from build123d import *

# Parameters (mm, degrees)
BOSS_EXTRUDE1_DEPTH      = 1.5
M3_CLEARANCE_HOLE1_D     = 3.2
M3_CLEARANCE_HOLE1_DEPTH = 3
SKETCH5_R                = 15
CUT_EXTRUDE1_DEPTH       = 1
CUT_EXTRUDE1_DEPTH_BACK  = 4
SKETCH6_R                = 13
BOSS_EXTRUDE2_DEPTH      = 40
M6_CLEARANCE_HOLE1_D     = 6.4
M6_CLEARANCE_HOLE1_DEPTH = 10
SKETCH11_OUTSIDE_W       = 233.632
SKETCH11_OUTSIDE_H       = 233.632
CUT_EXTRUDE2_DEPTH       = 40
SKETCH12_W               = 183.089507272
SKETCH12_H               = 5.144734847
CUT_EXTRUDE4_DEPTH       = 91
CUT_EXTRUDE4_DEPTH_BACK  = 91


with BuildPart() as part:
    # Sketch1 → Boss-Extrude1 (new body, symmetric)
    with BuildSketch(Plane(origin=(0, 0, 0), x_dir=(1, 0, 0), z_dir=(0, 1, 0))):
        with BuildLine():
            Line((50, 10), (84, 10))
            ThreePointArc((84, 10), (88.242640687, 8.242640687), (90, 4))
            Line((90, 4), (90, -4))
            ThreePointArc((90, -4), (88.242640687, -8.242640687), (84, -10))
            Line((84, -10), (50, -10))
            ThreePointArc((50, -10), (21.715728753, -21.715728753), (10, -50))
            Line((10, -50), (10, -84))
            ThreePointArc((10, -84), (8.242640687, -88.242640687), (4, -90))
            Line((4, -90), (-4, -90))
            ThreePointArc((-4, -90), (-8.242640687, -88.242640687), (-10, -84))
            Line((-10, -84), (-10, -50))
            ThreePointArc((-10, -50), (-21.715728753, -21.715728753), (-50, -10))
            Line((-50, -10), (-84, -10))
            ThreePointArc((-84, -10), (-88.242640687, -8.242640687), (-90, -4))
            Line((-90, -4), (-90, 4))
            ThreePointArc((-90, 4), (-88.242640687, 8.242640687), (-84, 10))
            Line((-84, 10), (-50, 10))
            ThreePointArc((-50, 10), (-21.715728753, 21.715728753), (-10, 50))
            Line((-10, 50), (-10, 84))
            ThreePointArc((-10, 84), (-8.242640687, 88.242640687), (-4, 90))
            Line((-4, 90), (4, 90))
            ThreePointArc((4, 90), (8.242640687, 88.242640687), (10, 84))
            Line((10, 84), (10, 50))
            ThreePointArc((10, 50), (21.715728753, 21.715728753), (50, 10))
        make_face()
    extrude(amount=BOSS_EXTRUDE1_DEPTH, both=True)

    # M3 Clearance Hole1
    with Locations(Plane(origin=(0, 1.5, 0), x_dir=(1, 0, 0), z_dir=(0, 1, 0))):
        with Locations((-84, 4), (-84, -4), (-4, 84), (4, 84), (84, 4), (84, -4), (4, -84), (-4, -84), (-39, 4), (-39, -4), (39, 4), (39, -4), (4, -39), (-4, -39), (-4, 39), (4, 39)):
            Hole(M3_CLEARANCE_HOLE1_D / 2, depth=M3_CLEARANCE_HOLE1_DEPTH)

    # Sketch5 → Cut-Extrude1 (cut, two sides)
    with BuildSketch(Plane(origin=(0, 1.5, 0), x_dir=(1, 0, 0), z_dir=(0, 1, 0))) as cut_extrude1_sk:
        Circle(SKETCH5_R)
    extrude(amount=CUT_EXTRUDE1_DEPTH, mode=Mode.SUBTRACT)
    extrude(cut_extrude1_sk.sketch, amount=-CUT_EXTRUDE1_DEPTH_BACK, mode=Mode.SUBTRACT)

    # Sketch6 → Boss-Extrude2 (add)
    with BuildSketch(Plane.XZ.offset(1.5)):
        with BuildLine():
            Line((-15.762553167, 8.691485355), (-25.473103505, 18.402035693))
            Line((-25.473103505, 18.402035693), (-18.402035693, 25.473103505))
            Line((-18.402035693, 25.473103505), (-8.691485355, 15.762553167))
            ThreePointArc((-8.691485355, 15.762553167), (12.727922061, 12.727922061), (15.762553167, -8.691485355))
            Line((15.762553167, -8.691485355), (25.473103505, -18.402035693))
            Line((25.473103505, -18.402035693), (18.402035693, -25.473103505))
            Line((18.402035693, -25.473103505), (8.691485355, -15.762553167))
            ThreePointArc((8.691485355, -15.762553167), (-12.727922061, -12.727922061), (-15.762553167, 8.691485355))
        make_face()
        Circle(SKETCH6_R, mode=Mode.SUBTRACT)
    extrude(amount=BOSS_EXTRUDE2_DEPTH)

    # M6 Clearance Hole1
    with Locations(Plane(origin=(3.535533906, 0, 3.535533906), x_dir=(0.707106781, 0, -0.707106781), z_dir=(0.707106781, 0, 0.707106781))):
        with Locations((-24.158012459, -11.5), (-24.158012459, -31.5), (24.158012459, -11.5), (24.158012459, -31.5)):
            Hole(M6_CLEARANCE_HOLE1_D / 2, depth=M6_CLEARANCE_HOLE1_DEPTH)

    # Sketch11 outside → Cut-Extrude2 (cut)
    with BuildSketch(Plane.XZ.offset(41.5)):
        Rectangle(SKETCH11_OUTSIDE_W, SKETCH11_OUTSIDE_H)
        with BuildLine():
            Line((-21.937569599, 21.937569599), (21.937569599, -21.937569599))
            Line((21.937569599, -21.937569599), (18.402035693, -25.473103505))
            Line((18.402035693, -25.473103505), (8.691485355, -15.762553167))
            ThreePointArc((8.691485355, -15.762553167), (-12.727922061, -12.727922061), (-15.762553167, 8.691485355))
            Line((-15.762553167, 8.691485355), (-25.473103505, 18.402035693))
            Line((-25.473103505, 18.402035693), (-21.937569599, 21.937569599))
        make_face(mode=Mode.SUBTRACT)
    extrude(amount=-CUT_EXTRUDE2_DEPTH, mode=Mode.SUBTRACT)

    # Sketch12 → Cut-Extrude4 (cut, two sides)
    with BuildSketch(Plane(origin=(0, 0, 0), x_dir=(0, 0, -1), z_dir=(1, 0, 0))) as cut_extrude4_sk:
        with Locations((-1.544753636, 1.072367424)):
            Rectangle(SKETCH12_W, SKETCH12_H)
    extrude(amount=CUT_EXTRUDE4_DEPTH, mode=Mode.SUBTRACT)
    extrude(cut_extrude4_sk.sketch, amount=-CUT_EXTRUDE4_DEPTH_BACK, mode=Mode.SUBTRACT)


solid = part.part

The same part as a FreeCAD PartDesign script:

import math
import FreeCAD as App
import Part
import Sketcher

V = App.Vector
Q = App.Units.Quantity

doc = App.newDocument("Part")
body = doc.addObject("PartDesign::Body", "Body")

# Sketch on XZ plane
sketch1 = doc.addObject("Sketcher::SketchObject", "Sketch")
body.addObject(sketch1)
sketch1.AttachmentSupport = (doc.XZ_Plane, [""])
sketch1.MapMode = "FlatFace"
sketch1.addGeometry([
    Part.LineSegment(V(84, -10, 0), V(50, -10, 0)),  # 0
    Part.ArcOfCircle(Part.Circle(V(50, -50, 0), V(0, 0, 1), 40), math.radians(90), math.radians(180)),  # 1
    Part.LineSegment(V(10, -50, 0), V(10, -84, 0)),  # 2
    Part.ArcOfCircle(Part.Circle(V(4, -84, 0), V(0, 0, 1), 6), math.radians(-90), math.radians(0)),  # 3
    Part.LineSegment(V(4, -90, 0), V(-4, -90, 0)),  # 4
    Part.ArcOfCircle(Part.Circle(V(-4, -84, 0), V(0, 0, 1), 6), math.radians(180), math.radians(270)),  # 5
    Part.LineSegment(V(-10, -84, 0), V(-10, -50, 0)),  # 6
    Part.ArcOfCircle(Part.Circle(V(-50, -50, 0), V(0, 0, 1), 40), math.radians(0), math.radians(90)),  # 7
    Part.LineSegment(V(-50, -10, 0), V(-84, -10, 0)),  # 8
    Part.ArcOfCircle(Part.Circle(V(-84, -4, 0), V(0, 0, 1), 6), math.radians(180), math.radians(270)),  # 9
    Part.LineSegment(V(-90, -4, 0), V(-90, 4, 0)),  # 10
    Part.ArcOfCircle(Part.Circle(V(-84, 4, 0), V(0, 0, 1), 6), math.radians(90), math.radians(180)),  # 11
    Part.LineSegment(V(-84, 10, 0), V(-50, 10, 0)),  # 12
    Part.ArcOfCircle(Part.Circle(V(-50, 50, 0), V(0, 0, 1), 40), math.radians(-90), math.radians(0)),  # 13
    Part.LineSegment(V(-10, 50, 0), V(-10, 84, 0)),  # 14
    Part.ArcOfCircle(Part.Circle(V(-4, 84, 0), V(0, 0, 1), 6), math.radians(90), math.radians(180)),  # 15
    Part.LineSegment(V(-4, 90, 0), V(4, 90, 0)),  # 16
    Part.ArcOfCircle(Part.Circle(V(4, 84, 0), V(0, 0, 1), 6), math.radians(0), math.radians(90)),  # 17
    Part.LineSegment(V(10, 84, 0), V(10, 50, 0)),  # 18
    Part.ArcOfCircle(Part.Circle(V(50, 50, 0), V(0, 0, 1), 40), math.radians(-180), math.radians(-90)),  # 19
    Part.LineSegment(V(50, 10, 0), V(84, 10, 0)),  # 20
    Part.ArcOfCircle(Part.Circle(V(84, 4, 0), V(0, 0, 1), 6), math.radians(0), math.radians(90)),  # 21
    Part.LineSegment(V(90, 4, 0), V(90, -4, 0)),  # 22
    Part.ArcOfCircle(Part.Circle(V(84, -4, 0), V(0, 0, 1), 6), math.radians(-90), math.radians(0)),  # 23
], False)
sketch1.addConstraint([
    Sketcher.Constraint("Tangent", 0, 2, 1, 1),
    Sketcher.Constraint("Tangent", 1, 2, 2, 1),
    Sketcher.Constraint("Tangent", 2, 2, 3, 2),
    Sketcher.Constraint("Tangent", 3, 1, 4, 1),
    Sketcher.Constraint("Tangent", 4, 2, 5, 2),
    Sketcher.Constraint("Tangent", 5, 1, 6, 1),
    Sketcher.Constraint("Tangent", 6, 2, 7, 1),
    Sketcher.Constraint("Tangent", 7, 2, 8, 1),
    Sketcher.Constraint("Tangent", 8, 2, 9, 2),
    Sketcher.Constraint("Tangent", 9, 1, 10, 1),
    Sketcher.Constraint("Tangent", 10, 2, 11, 2),
    Sketcher.Constraint("Tangent", 11, 1, 12, 1),
    Sketcher.Constraint("Tangent", 12, 2, 13, 1),
    Sketcher.Constraint("Tangent", 13, 2, 14, 1),
    Sketcher.Constraint("Tangent", 14, 2, 15, 2),
    Sketcher.Constraint("Tangent", 15, 1, 16, 1),
    Sketcher.Constraint("Tangent", 16, 2, 17, 2),
    Sketcher.Constraint("Tangent", 17, 1, 18, 1),
    Sketcher.Constraint("Tangent", 18, 2, 19, 1),
    Sketcher.Constraint("Tangent", 19, 2, 20, 1),
    Sketcher.Constraint("Tangent", 20, 2, 21, 2),
    Sketcher.Constraint("Tangent", 21, 1, 22, 1),
    Sketcher.Constraint("Tangent", 22, 2, 23, 2),
    Sketcher.Constraint("Tangent", 23, 1, 0, 1),
    Sketcher.Constraint("Horizontal", 0),
    Sketcher.Constraint("Vertical", 2),
    Sketcher.Constraint("Horizontal", 4),
    Sketcher.Constraint("Vertical", 6),
    Sketcher.Constraint("Horizontal", 8),
    Sketcher.Constraint("Vertical", 10),
    Sketcher.Constraint("Horizontal", 12),
    Sketcher.Constraint("Vertical", 14),
    Sketcher.Constraint("Horizontal", 16),
    Sketcher.Constraint("Vertical", 18),
    Sketcher.Constraint("Horizontal", 20),
    Sketcher.Constraint("Vertical", 22),
    Sketcher.Constraint("Equal", 3, 5),
    Sketcher.Constraint("Equal", 1, 7),
    Sketcher.Constraint("Equal", 5, 9),
    Sketcher.Constraint("Equal", 9, 11),
    Sketcher.Constraint("Equal", 7, 13),
    Sketcher.Constraint("Equal", 11, 15),
    Sketcher.Constraint("Equal", 15, 17),
    Sketcher.Constraint("Equal", 13, 19),
    Sketcher.Constraint("Equal", 17, 21),
    Sketcher.Constraint("Equal", 21, 23),
    Sketcher.Constraint("Symmetric", 1, 3, 13, 3, -1, 1),
    Sketcher.Constraint("Symmetric", 5, 3, 17, 3, -1, 1),
    Sketcher.Constraint("Symmetric", 9, 3, 21, 3, -1, 1),
    Sketcher.Constraint("Symmetric", 1, 3, 7, 3, -2),
    Sketcher.Constraint("Equal", 20, 2),
    Sketcher.Constraint("Equal", 16, 10),
    Sketcher.Constraint("Radius", 1, Q("40 mm")),
    Sketcher.Constraint("Radius", 3, Q("6 mm")),
    Sketcher.Constraint("DistanceX", 0, 2, 0, 1, Q("34 mm")),
    Sketcher.Constraint("DistanceX", 4, 2, 4, 1, Q("8 mm")),
])
pad1 = doc.addObject("PartDesign::Pad", "Pad")
body.addObject(pad1)
pad1.Profile = sketch1
pad1.Length = 3
pad1.Midplane = True

# Sketch on XZ plane
sketch2 = doc.addObject("Sketcher::SketchObject", "Sketch001")
body.addObject(sketch2)
sketch2.AttachmentSupport = (doc.XZ_Plane, [""])
sketch2.MapMode = "FlatFace"
sketch2.AttachmentOffset = App.Placement(V(0, 0, -1.5), App.Rotation())
sketch2.addGeometry([
    Part.Circle(V(-84, -4, 0), V(0, 0, 1), 1.6),  # 0
    Part.Circle(V(-84, 4, 0), V(0, 0, 1), 1.6),  # 1
    Part.Circle(V(-4, -84, 0), V(0, 0, 1), 1.6),  # 2
    Part.Circle(V(4, -84, 0), V(0, 0, 1), 1.6),  # 3
    Part.Circle(V(84, -4, 0), V(0, 0, 1), 1.6),  # 4
    Part.Circle(V(84, 4, 0), V(0, 0, 1), 1.6),  # 5
    Part.Circle(V(4, 84, 0), V(0, 0, 1), 1.6),  # 6
    Part.Circle(V(-4, 84, 0), V(0, 0, 1), 1.6),  # 7
    Part.Circle(V(-39, -4, 0), V(0, 0, 1), 1.6),  # 8
    Part.Circle(V(-39, 4, 0), V(0, 0, 1), 1.6),  # 9
    Part.Circle(V(39, -4, 0), V(0, 0, 1), 1.6),  # 10
    Part.Circle(V(39, 4, 0), V(0, 0, 1), 1.6),  # 11
    Part.Circle(V(4, 39, 0), V(0, 0, 1), 1.6),  # 12
    Part.Circle(V(-4, 39, 0), V(0, 0, 1), 1.6),  # 13
    Part.Circle(V(-4, -39, 0), V(0, 0, 1), 1.6),  # 14
    Part.Circle(V(4, -39, 0), V(0, 0, 1), 1.6),  # 15
], False)
sketch2.addConstraint([
    Sketcher.Constraint("Equal", 0, 1),
    Sketcher.Constraint("Equal", 1, 2),
    Sketcher.Constraint("Equal", 2, 3),
    Sketcher.Constraint("Equal", 3, 4),
    Sketcher.Constraint("Equal", 4, 5),
    Sketcher.Constraint("Equal", 5, 6),
    Sketcher.Constraint("Equal", 6, 7),
    Sketcher.Constraint("Equal", 7, 8),
    Sketcher.Constraint("Equal", 8, 9),
    Sketcher.Constraint("Equal", 9, 10),
    Sketcher.Constraint("Equal", 10, 11),
    Sketcher.Constraint("Equal", 11, 12),
    Sketcher.Constraint("Equal", 12, 13),
    Sketcher.Constraint("Equal", 13, 14),
    Sketcher.Constraint("Equal", 14, 15),
    Sketcher.Constraint("Symmetric", 1, 3, 4, 3, -1, 1),
    Sketcher.Constraint("Symmetric", 0, 3, 5, 3, -1, 1),
    Sketcher.Constraint("Symmetric", 2, 3, 6, 3, -1, 1),
    Sketcher.Constraint("Symmetric", 3, 3, 7, 3, -1, 1),
    Sketcher.Constraint("Symmetric", 9, 3, 10, 3, -1, 1),
    Sketcher.Constraint("Symmetric", 8, 3, 11, 3, -1, 1),
    Sketcher.Constraint("Symmetric", 12, 3, 14, 3, -1, 1),
    Sketcher.Constraint("Symmetric", 13, 3, 15, 3, -1, 1),
    Sketcher.Constraint("Symmetric", 2, 3, 3, 3, -2),
    Sketcher.Constraint("Symmetric", 0, 3, 4, 3, -2),
    Sketcher.Constraint("Symmetric", 8, 3, 10, 3, -2),
    Sketcher.Constraint("Symmetric", 12, 3, 13, 3, -2),
    Sketcher.Constraint("Horizontal", 4, 3, 8, 3),
    Sketcher.Constraint("Vertical", 6, 3, 12, 3),
    Sketcher.Constraint("Diameter", 0, Q("3.2 mm")),
    Sketcher.Constraint("DistanceX", 0, 3, -1, 1, Q("84 mm")),
    Sketcher.Constraint("DistanceY", 0, 3, -1, 1, Q("4 mm")),
    Sketcher.Constraint("DistanceX", 2, 3, -1, 1, Q("4 mm")),
    Sketcher.Constraint("DistanceY", 2, 3, -1, 1, Q("84 mm")),
    Sketcher.Constraint("DistanceX", 8, 3, -1, 1, Q("39 mm")),
    Sketcher.Constraint("DistanceY", -1, 1, 12, 3, Q("39 mm")),
])
doc.recompute()
hole = doc.addObject("PartDesign::Hole", "Hole")
body.addObject(hole)
hole.Profile = sketch2
hole.ThreadType = "None"
hole.Diameter = 3.2
hole.DepthType = "Dimension"
hole.Depth = 3
hole.DrillPoint = "Flat"
hole.Reversed = True

# Sketch on XZ plane
sketch3 = doc.addObject("Sketcher::SketchObject", "Sketch002")
body.addObject(sketch3)
sketch3.AttachmentSupport = (doc.XZ_Plane, [""])
sketch3.MapMode = "FlatFace"
sketch3.AttachmentOffset = App.Placement(V(0, 0, -1.5), App.Rotation())
sketch3.addGeometry(Part.Circle(V(0, 0, 0), V(0, 0, 1), 15), False)
sketch3.addConstraint([
    Sketcher.Constraint("Coincident", 0, 3, -1, 1),
    Sketcher.Constraint("Diameter", 0, Q("30 mm")),
])
pocket1 = doc.addObject("PartDesign::Pocket", "Pocket")
body.addObject(pocket1)
pocket1.Profile = sketch3
pocket1.Type = "ThroughAll"
pocket1.Midplane = True

# Sketch on XZ plane
sketch4 = doc.addObject("Sketcher::SketchObject", "Sketch003")
body.addObject(sketch4)
sketch4.AttachmentSupport = (doc.XZ_Plane, [""])
sketch4.MapMode = "FlatFace"
sketch4.AttachmentOffset = App.Placement(V(0, 0, 1.5), App.Rotation())
sketch4.addGeometry([
    Part.LineSegment(V(-25, 18, 0), V(-16, 9, 0)),  # 0
    Part.ArcOfCircle(Part.Circle(V(0, 0, 0), V(0, 0, 1), 18), math.radians(151), math.radians(299)),  # 1
    Part.LineSegment(V(9, -16, 0), V(18, -25, 0)),  # 2
    Part.LineSegment(V(18, -25, 0), V(25, -18, 0)),  # 3
    Part.LineSegment(V(25, -18, 0), V(16, -9, 0)),  # 4
    Part.ArcOfCircle(Part.Circle(V(0, 0, 0), V(0, 0, 1), 18), math.radians(-29), math.radians(119)),  # 5
    Part.LineSegment(V(-9, 16, 0), V(-18, 25, 0)),  # 6
    Part.LineSegment(V(-18, 25, 0), V(-25, 18, 0)),  # 7
    Part.Circle(V(0, 0, 0), V(0, 0, 1), 13),  # 8
], False)
sketch4.addConstraint([
    Sketcher.Constraint("Coincident", 0, 2, 1, 1),
    Sketcher.Constraint("Coincident", 1, 2, 2, 1),
    Sketcher.Constraint("Coincident", 2, 2, 3, 1),
    Sketcher.Constraint("Coincident", 3, 2, 4, 1),
    Sketcher.Constraint("Coincident", 4, 2, 5, 1),
    Sketcher.Constraint("Coincident", 5, 2, 6, 1),
    Sketcher.Constraint("Coincident", 6, 2, 7, 1),
    Sketcher.Constraint("Coincident", 7, 2, 0, 1),
    Sketcher.Constraint("Coincident", 1, 3, -1, 1),
    Sketcher.Constraint("Coincident", 5, 3, -1, 1),
    Sketcher.Constraint("Coincident", 8, 3, -1, 1),
    Sketcher.Constraint("Equal", 1, 5),
    Sketcher.Constraint("Symmetric", 2, 2, 6, 2, -1, 1),
    Sketcher.Constraint("Symmetric", 3, 2, 7, 2, -1, 1),
    Sketcher.Constraint("Parallel", 0, 2),
    Sketcher.Constraint("Perpendicular", 2, 3),
    Sketcher.Constraint("Perpendicular", 3, 4),
    Sketcher.Constraint("Parallel", 4, 6),
    Sketcher.Constraint("Equal", 0, 2),
    Sketcher.Constraint("Diameter", 8, Q("26 mm")),
    Sketcher.Constraint("Radius", 1, Q("18 mm")),
    Sketcher.Constraint("Angle", 0, Q("-45 deg")),
    Sketcher.Constraint("Distance", 3, Q("10 mm")),
    Sketcher.Constraint("Distance", 0, Q("13.732792 mm")),
])
pad2 = doc.addObject("PartDesign::Pad", "Pad001")
body.addObject(pad2)
pad2.Profile = sketch4
pad2.Length = 40

# Sketch on an angled plane
sketch5 = doc.addObject("Sketcher::SketchObject", "Sketch004")
body.addObject(sketch5)
sketch5.Placement = App.Placement(V(3.535534, 0, 3.535534), App.Rotation(V(0.707106781, 0, -0.707106781), V(0, 0.999999999, 0), V(0.707106781, 0, 0.707106781), "ZXY"))
sketch5.addGeometry([
    Part.Circle(V(-24.2, -11.5, 0), V(0, 0, 1), 3.2),
    Part.Circle(V(-24.2, -31.5, 0), V(0, 0, 1), 3.2),
    Part.Circle(V(24.2, -11.5, 0), V(0, 0, 1), 3.2),
    Part.Circle(V(24.2, -31.5, 0), V(0, 0, 1), 3.2),
], False)
sketch5.addConstraint([
    Sketcher.Constraint("Equal", 0, 1),
    Sketcher.Constraint("Equal", 1, 2),
    Sketcher.Constraint("Equal", 2, 3),
    Sketcher.Constraint("Symmetric", 0, 3, 2, 3, -2),
    Sketcher.Constraint("Symmetric", 1, 3, 3, 3, -2),
    Sketcher.Constraint("Vertical", 0, 3, 1, 3),
    Sketcher.Constraint("Diameter", 0, Q("6.4 mm")),
    Sketcher.Constraint("DistanceY", 1, 3, 0, 3, Q("20 mm")),
    Sketcher.Constraint("DistanceY", 0, 3, -1, 1, Q("11.5 mm")),
    Sketcher.Constraint("DistanceX", 0, 3, -1, 1, Q("24.158012 mm")),
])
doc.recompute()
hole2 = doc.addObject("PartDesign::Hole", "Hole001")
body.addObject(hole2)
hole2.Profile = sketch5
hole2.ThreadType = "None"
hole2.Diameter = 6.4
hole2.DepthType = "Dimension"
hole2.Depth = 10
hole2.DrillPoint = "Flat"

# Sketch on XZ plane
sketch6 = doc.addObject("Sketcher::SketchObject", "Sketch005")
body.addObject(sketch6)
sketch6.AttachmentSupport = (doc.XZ_Plane, [""])
sketch6.MapMode = "FlatFace"
sketch6.AttachmentOffset = App.Placement(V(0, 0, 41.5), App.Rotation())
sketch6.addGeometry([
    Part.LineSegment(V(-117, 117, 0), V(-117, -117, 0)),  # 0
    Part.LineSegment(V(-117, -117, 0), V(117, -117, 0)),  # 1
    Part.LineSegment(V(117, -117, 0), V(117, 117, 0)),  # 2
    Part.LineSegment(V(117, 117, 0), V(-117, 117, 0)),  # 3
    Part.LineSegment(V(-25, 18, 0), V(-22, 22, 0)),  # 4
    Part.LineSegment(V(-22, 22, 0), V(22, -22, 0)),  # 5
    Part.LineSegment(V(22, -22, 0), V(18, -25, 0)),  # 6
    Part.LineSegment(V(18, -25, 0), V(9, -16, 0)),  # 7
    Part.ArcOfCircle(Part.Circle(V(0, 0, 0), V(0, 0, 1), 18), math.radians(151), math.radians(299)),  # 8
    Part.LineSegment(V(-16, 9, 0), V(-25, 18, 0)),  # 9
], False)
sketch6.addConstraint([
    Sketcher.Constraint("Coincident", 0, 2, 1, 1),
    Sketcher.Constraint("Coincident", 1, 2, 2, 1),
    Sketcher.Constraint("Coincident", 2, 2, 3, 1),
    Sketcher.Constraint("Coincident", 3, 2, 0, 1),
    Sketcher.Constraint("Coincident", 4, 2, 5, 1),
    Sketcher.Constraint("Coincident", 5, 2, 6, 1),
    Sketcher.Constraint("Coincident", 6, 2, 7, 1),
    Sketcher.Constraint("Coincident", 7, 2, 8, 2),
    Sketcher.Constraint("Coincident", 8, 1, 9, 1),
    Sketcher.Constraint("Coincident", 9, 2, 4, 1),
    Sketcher.Constraint("Vertical", 0),
    Sketcher.Constraint("Horizontal", 1),
    Sketcher.Constraint("Vertical", 2),
    Sketcher.Constraint("Horizontal", 3),
    Sketcher.Constraint("Coincident", 8, 3, -1, 1),
    Sketcher.Constraint("Symmetric", 0, 2, 2, 2, -1, 1),
    Sketcher.Constraint("Symmetric", 4, 2, 5, 2, -1, 1),
    Sketcher.Constraint("Perpendicular", 4, 5),
    Sketcher.Constraint("Perpendicular", 5, 6),
    Sketcher.Constraint("Perpendicular", 6, 7),
    Sketcher.Constraint("Parallel", 7, 9),
    Sketcher.Constraint("Equal", 3, 0),
    Sketcher.Constraint("Equal", 4, 6),
    Sketcher.Constraint("Radius", 8, Q("18 mm")),
    Sketcher.Constraint("Angle", 4, Q("45 deg")),
    Sketcher.Constraint("Distance", 4, Q("5 mm")),
    Sketcher.Constraint("DistanceX", 1, 1, 1, 2, Q("233.632 mm")),
    Sketcher.Constraint("Distance", 7, Q("13.732792 mm")),
])
pocket2 = doc.addObject("PartDesign::Pocket", "Pocket001")
body.addObject(pocket2)
pocket2.Profile = sketch6
pocket2.Length = 40

# Sketch on YZ plane
sketch7 = doc.addObject("Sketcher::SketchObject", "Sketch006")
body.addObject(sketch7)
sketch7.AttachmentSupport = (doc.YZ_Plane, [""])
sketch7.MapMode = "FlatFace"
sketch7.addGeometry([
    Part.LineSegment(V(4, 93, 0), V(-1, 93, 0)),
    Part.LineSegment(V(-1, 93, 0), V(-1, -90, 0)),
    Part.LineSegment(V(-1, -90, 0), V(4, -90, 0)),
    Part.LineSegment(V(4, -90, 0), V(4, 93, 0)),
], False)
sketch7.addConstraint([
    Sketcher.Constraint("Coincident", 0, 2, 1, 1),
    Sketcher.Constraint("Coincident", 1, 2, 2, 1),
    Sketcher.Constraint("Coincident", 2, 2, 3, 1),
    Sketcher.Constraint("Coincident", 3, 2, 0, 1),
    Sketcher.Constraint("Horizontal", 0),
    Sketcher.Constraint("Vertical", 1),
    Sketcher.Constraint("Horizontal", 2),
    Sketcher.Constraint("Vertical", 3),
    Sketcher.Constraint("DistanceY", 1, 2, -1, 1, Q("90 mm")),
    Sketcher.Constraint("DistanceX", 0, 2, -1, 1, Q("1.5 mm")),
    Sketcher.Constraint("DistanceX", 0, 2, 0, 1, Q("5.144735 mm")),
    Sketcher.Constraint("DistanceY", 1, 2, 1, 1, Q("183.089507 mm")),
])
pocket3 = doc.addObject("PartDesign::Pocket", "Pocket002")
body.addObject(pocket3)
pocket3.Profile = sketch7
pocket3.Type = "ThroughAll"
pocket3.Midplane = True

doc.recompute()
